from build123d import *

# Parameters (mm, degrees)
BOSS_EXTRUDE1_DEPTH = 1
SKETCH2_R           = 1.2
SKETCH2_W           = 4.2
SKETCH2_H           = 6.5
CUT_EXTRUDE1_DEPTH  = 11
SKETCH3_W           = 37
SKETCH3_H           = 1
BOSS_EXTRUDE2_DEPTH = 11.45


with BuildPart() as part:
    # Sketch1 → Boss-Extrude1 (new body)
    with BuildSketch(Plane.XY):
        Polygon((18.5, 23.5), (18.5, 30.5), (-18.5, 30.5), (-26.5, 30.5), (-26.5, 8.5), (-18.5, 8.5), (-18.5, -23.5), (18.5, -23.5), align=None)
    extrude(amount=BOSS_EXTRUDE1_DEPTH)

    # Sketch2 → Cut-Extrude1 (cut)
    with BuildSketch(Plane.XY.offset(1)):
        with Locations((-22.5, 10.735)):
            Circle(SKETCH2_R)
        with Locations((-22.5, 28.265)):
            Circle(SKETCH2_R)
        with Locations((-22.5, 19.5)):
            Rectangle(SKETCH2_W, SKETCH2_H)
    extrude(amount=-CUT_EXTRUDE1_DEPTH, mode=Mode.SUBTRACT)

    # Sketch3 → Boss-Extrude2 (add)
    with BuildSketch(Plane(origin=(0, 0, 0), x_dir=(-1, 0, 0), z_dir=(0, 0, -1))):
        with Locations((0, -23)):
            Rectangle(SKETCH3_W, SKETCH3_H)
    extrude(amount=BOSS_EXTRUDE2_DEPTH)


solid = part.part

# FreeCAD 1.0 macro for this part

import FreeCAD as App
import Part
import Sketcher
Q = App.Units.Quantity

doc = App.newDocument("Part")
params = doc.addObject("Spreadsheet::Sheet", "Params")
for row, (alias, value) in enumerate([
    ("sketch1_width", "45 mm"),
    ("sketch1_width2", "8 mm"),
    ("sketch1_height", "22 mm"),
    ("sketch1_height2", "32 mm"),
    ("pad1_length", "1 mm"),
    ("sketch2_diameter", "2.4 mm"),
    ("sketch2_width", "4.2 mm"),
    ("sketch2_height", "6.5 mm"),
    ("pocket1_length", "11 mm"),
    ("sketch3_width", "37 mm"),
    ("sketch3_height", "1 mm"),
    ("pad2_length", "11.45 mm"),
], start=1):
    params.set(f"A{row}", alias)
    params.set(f"B{row}", "=" + value)
    params.setAlias(f"B{row}", alias)

body = doc.addObject("PartDesign::Body", "Body")

# Sketch on XY plane
sketch1 = body.newObject("Sketcher::SketchObject", "Sketch")
sketch1.AttachmentSupport = (doc.getObject("XY_Plane"), [""])
sketch1.MapMode = "FlatFace"
sketch1.addGeometry([
    Part.LineSegment(App.Vector(18, 30, 0), App.Vector(-26, 30, 0)),  # 0
    Part.LineSegment(App.Vector(-26, 30, 0), App.Vector(-26, 8, 0)),  # 1
    Part.LineSegment(App.Vector(-26, 8, 0), App.Vector(-18, 8, 0)),  # 2
    Part.LineSegment(App.Vector(-18, 8, 0), App.Vector(-18, -24, 0)),  # 3
    Part.LineSegment(App.Vector(-18, -24, 0), App.Vector(18, -24, 0)),  # 4
    Part.LineSegment(App.Vector(18, -24, 0), App.Vector(18, 30, 0)),  # 5
], False)
sketch1.addConstraint([
    Sketcher.Constraint("Coincident", 0, 2, 1, 1),
    Sketcher.Constraint("Coincident", 1, 2, 2, 1),
    Sketcher.Constraint("Coincident", 2, 2, 3, 1),
    Sketcher.Constraint("Coincident", 3, 2, 4, 1),
    Sketcher.Constraint("Coincident", 4, 2, 5, 1),
    Sketcher.Constraint("Coincident", 5, 2, 0, 1),
    Sketcher.Constraint("Horizontal", 0),
    Sketcher.Constraint("Vertical", 1),
    Sketcher.Constraint("Horizontal", 2),
    Sketcher.Constraint("Vertical", 3),
    Sketcher.Constraint("Horizontal", 4),
    Sketcher.Constraint("Vertical", 5),
    Sketcher.Constraint("DistanceX", 0, 2, 0, 1, Q("45 mm")),
    Sketcher.Constraint("DistanceX", 2, 1, 2, 2, Q("8 mm")),
    Sketcher.Constraint("DistanceY", 1, 2, 1, 1, Q("22 mm")),
    Sketcher.Constraint("DistanceY", 3, 2, 3, 1, Q("32 mm")),
    Sketcher.Constraint("DistanceX", 0, 2, -1, 1, Q("26.5 mm")),
    Sketcher.Constraint("DistanceY", -1, 1, 0, 2, Q("30.5 mm")),
])
sketch1.setExpression("Constraints[12]", "Params.sketch1_width")
sketch1.setExpression("Constraints[13]", "Params.sketch1_width2")
sketch1.setExpression("Constraints[14]", "Params.sketch1_height")
sketch1.setExpression("Constraints[15]", "Params.sketch1_height2")
pad1 = body.newObject("PartDesign::Pad", "Pad")
pad1.Profile = sketch1
pad1.setExpression("Length", "Params.pad1_length")

# Sketch on XY plane
sketch2 = body.newObject("Sketcher::SketchObject", "Sketch001")
sketch2.AttachmentSupport = (doc.getObject("XY_Plane"), [""])
sketch2.MapMode = "FlatFace"
sketch2.AttachmentOffset = App.Placement(App.Vector(0, 0, 1), App.Rotation())
sketch2.addGeometry([
    Part.Circle(App.Vector(-22.5, 10.7, 0), App.Vector(0, 0, 1), 1.2),  # 0
    Part.Circle(App.Vector(-22.5, 28.3, 0), App.Vector(0, 0, 1), 1.2),  # 1
    Part.LineSegment(App.Vector(-24.6, 22.8, 0), App.Vector(-24.6, 16.2, 0)),  # 2
    Part.LineSegment(App.Vector(-24.6, 16.2, 0), App.Vector(-20.4, 16.2, 0)),  # 3
    Part.LineSegment(App.Vector(-20.4, 16.2, 0), App.Vector(-20.4, 22.8, 0)),  # 4
    Part.LineSegment(App.Vector(-20.4, 22.8, 0), App.Vector(-24.6, 22.8, 0)),  # 5
], False)
sketch2.addConstraint([
    Sketcher.Constraint("Coincident", 2, 2, 3, 1),
    Sketcher.Constraint("Coincident", 3, 2, 4, 1),
    Sketcher.Constraint("Coincident", 4, 2, 5, 1),
    Sketcher.Constraint("Coincident", 5, 2, 2, 1),
    Sketcher.Constraint("Vertical", 2),
    Sketcher.Constraint("Horizontal", 3),
    Sketcher.Constraint("Vertical", 4),
    Sketcher.Constraint("Horizontal", 5),
    Sketcher.Constraint("Equal", 0, 1),
    Sketcher.Constraint("Vertical", 0, 3, 1, 3),
    Sketcher.Constraint("Diameter", 0, Q("2.4 mm")),
    Sketcher.Constraint("DistanceX", 3, 1, 3, 2, Q("4.2 mm")),
    Sketcher.Constraint("DistanceY", 2, 2, 2, 1, Q("6.5 mm")),
    Sketcher.Constraint("DistanceX", 0, 3, -1, 1, Q("22.5 mm")),
    Sketcher.Constraint("DistanceX", 2, 2, -1, 1, Q("24.6 mm")),
    Sketcher.Constraint("DistanceY", -1, 1, 2, 2, Q("16.25 mm")),
    Sketcher.Constraint("DistanceY", 0, 3, 1, 3, Q("17.53 mm")),
    Sketcher.Constraint("DistanceY", -1, 1, 0, 3, Q("10.735 mm")),
])
sketch2.setExpression("Constraints[10]", "Params.sketch2_diameter")
sketch2.setExpression("Constraints[11]", "Params.sketch2_width")
sketch2.setExpression("Constraints[12]", "Params.sketch2_height")
pocket1 = body.newObject("PartDesign::Pocket", "Pocket")
pocket1.Profile = sketch2
pocket1.setExpression("Length", "Params.pocket1_length")

# Sketch on XY plane
sketch3 = body.newObject("Sketcher::SketchObject", "Sketch002")
sketch3.AttachmentSupport = (doc.getObject("XY_Plane"), [""])
sketch3.MapMode = "FlatFace"
sketch3.addGeometry([
    Part.LineSegment(App.Vector(18.5, -22.5, 0), App.Vector(18.5, -23.5, 0)),
    Part.LineSegment(App.Vector(18.5, -23.5, 0), App.Vector(-18.5, -23.5, 0)),
    Part.LineSegment(App.Vector(-18.5, -23.5, 0), App.Vector(-18.5, -22.5, 0)),
    Part.LineSegment(App.Vector(-18.5, -22.5, 0), App.Vector(18.5, -22.5, 0)),
], False)
sketch3.addConstraint([
    Sketcher.Constraint("Coincident", 0, 2, 1, 1),
    Sketcher.Constraint("Coincident", 1, 2, 2, 1),
    Sketcher.Constraint("Coincident", 2, 2, 3, 1),
    Sketcher.Constraint("Coincident", 3, 2, 0, 1),
    Sketcher.Constraint("Vertical", 0),
    Sketcher.Constraint("Horizontal", 1),
    Sketcher.Constraint("Vertical", 2),
    Sketcher.Constraint("Horizontal", 3),
    Sketcher.Constraint("DistanceX", 1, 2, 1, 1, Q("37 mm")),
    Sketcher.Constraint("DistanceY", 0, 2, 0, 1, Q("1 mm")),
    Sketcher.Constraint("DistanceX", -1, 1, 0, 2, Q("18.5 mm")),
    Sketcher.Constraint("DistanceY", 0, 2, -1, 1, Q("23.5 mm")),
])
sketch3.setExpression("Constraints[8]", "Params.sketch3_width")
sketch3.setExpression("Constraints[9]", "Params.sketch3_height")
pad2 = body.newObject("PartDesign::Pad", "Pad001")
pad2.Profile = sketch3
pad2.setExpression("Length", "Params.pad2_length")
pad2.Reversed = True

doc.recompute()
